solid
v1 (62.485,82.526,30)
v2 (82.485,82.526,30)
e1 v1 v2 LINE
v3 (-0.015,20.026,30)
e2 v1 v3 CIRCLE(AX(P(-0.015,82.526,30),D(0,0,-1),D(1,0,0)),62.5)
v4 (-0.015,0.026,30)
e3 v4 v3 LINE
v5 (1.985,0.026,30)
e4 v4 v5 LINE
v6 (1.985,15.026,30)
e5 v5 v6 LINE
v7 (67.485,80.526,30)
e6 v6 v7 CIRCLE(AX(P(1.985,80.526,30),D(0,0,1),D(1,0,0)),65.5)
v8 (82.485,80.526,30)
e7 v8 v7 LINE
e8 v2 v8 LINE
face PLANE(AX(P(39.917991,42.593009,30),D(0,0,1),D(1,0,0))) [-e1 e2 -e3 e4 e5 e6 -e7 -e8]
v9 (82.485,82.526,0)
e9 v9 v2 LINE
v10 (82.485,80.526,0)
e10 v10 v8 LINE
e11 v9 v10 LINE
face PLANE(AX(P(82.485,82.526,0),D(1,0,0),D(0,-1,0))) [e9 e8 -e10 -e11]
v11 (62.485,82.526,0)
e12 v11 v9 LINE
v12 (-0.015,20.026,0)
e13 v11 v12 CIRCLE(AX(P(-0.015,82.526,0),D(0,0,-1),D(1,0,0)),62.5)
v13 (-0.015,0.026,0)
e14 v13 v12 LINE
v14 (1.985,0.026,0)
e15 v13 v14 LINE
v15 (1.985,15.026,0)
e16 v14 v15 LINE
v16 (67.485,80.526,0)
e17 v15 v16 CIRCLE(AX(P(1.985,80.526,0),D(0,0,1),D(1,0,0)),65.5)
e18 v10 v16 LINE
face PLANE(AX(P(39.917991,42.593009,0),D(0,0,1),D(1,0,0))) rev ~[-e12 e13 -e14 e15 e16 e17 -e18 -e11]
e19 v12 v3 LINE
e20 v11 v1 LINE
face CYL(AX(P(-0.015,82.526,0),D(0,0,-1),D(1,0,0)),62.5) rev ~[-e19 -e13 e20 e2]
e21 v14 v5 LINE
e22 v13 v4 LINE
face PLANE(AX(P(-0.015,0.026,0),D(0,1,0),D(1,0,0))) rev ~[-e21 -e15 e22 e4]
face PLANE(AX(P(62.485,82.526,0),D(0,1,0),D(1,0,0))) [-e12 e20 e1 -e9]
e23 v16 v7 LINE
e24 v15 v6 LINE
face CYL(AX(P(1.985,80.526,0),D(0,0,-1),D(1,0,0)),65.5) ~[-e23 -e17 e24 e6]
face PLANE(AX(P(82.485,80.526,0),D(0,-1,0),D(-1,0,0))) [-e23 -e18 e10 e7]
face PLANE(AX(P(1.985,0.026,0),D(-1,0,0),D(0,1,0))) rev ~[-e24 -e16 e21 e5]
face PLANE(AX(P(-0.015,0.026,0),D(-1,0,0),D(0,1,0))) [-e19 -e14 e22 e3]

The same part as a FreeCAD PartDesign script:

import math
import FreeCAD as App
import Part
import Sketcher
from FreeCAD import Vector
Q = App.Units.Quantity

doc = App.newDocument("Part")
body = doc.addObject("PartDesign::Body", "Body")

# Sketch on XY plane
sketch1 = body.newObject("Sketcher::SketchObject", "Sketch")
sketch1.AttachmentSupport = (doc.getObject("XY_Plane"), [""])
sketch1.MapMode = "FlatFace"
sketch1.addGeometry(Part.LineSegment(Vector(0, 20, 0), Vector(0, 0, 0)), False)
sketch1.addGeometry(Part.LineSegment(Vector(0, 0, 0), Vector(2, 0, 0)), False)
sketch1.addGeometry(Part.LineSegment(Vector(2, 0, 0), Vector(2, 15, 0)), False)
sketch1.addGeometry(Part.ArcOfCircle(Part.Circle(Vector(2, 80.5, 0), Vector(0, 0, 1), 65.5), math.radians(-90), math.radians(0)), False)
sketch1.addGeometry(Part.LineSegment(Vector(67.5, 80.5, 0), Vector(82.5, 80.5, 0)), False)
sketch1.addGeometry(Part.LineSegment(Vector(82.5, 80.5, 0), Vector(82.5, 82.5, 0)), False)
sketch1.addGeometry(Part.LineSegment(Vector(82.5, 82.5, 0), Vector(62.5, 82.5, 0)), False)
sketch1.addGeometry(Part.ArcOfCircle(Part.Circle(Vector(0, 82.5, 0), Vector(0, 0, 1), 62.5), math.radians(-90), math.radians(0)), False)
sketch1.addConstraint(Sketcher.Constraint("Coincident", 0, 2, 1, 1))
sketch1.addConstraint(Sketcher.Constraint("Coincident", 1, 2, 2, 1))
sketch1.addConstraint(Sketcher.Constraint("Coincident", 2, 2, 3, 1))
sketch1.addConstraint(Sketcher.Constraint("Coincident", 3, 2, 4, 1))
sketch1.addConstraint(Sketcher.Constraint("Coincident", 4, 2, 5, 1))
sketch1.addConstraint(Sketcher.Constraint("Coincident", 5, 2, 6, 1))
sketch1.addConstraint(Sketcher.Constraint("Coincident", 6, 2, 7, 2))
sketch1.addConstraint(Sketcher.Constraint("Coincident", 7, 1, 0, 1))
sketch1.addConstraint(Sketcher.Constraint("Vertical", 0))
sketch1.addConstraint(Sketcher.Constraint("Horizontal", 1))
sketch1.addConstraint(Sketcher.Constraint("Vertical", 2))
sketch1.addConstraint(Sketcher.Constraint("Horizontal", 4))
sketch1.addConstraint(Sketcher.Constraint("Vertical", 5))
sketch1.addConstraint(Sketcher.Constraint("Horizontal", 6))
sketch1.addConstraint(Sketcher.Constraint("Horizontal", 7, 3, 5, 2))
sketch1.addConstraint(Sketcher.Constraint("Vertical", 7, 3, 0, 2))
sketch1.addConstraint(Sketcher.Constraint("Vertical", 3, 3, 1, 2))
sketch1.addConstraint(Sketcher.Constraint("Equal", 6, 0))
sketch1.addConstraint(Sketcher.Constraint("Equal", 4, 2))
sketch1.addConstraint(Sketcher.Constraint("Equal", 1, 5))
sketch1.addConstraint(Sketcher.Constraint("Radius", 3, Q("65.5 mm")))
sketch1.addConstraint(Sketcher.Constraint("Radius", 7, Q("62.5 mm")))
sketch1.addConstraint(Sketcher.Constraint("DistanceX", 1, 1, 1, 2, Q("2 mm")))
sketch1.addConstraint(Sketcher.Constraint("DistanceX", 4, 1, 4, 2, Q("15 mm")))
sketch1.addConstraint(Sketcher.Constraint("DistanceX", -1, 1, 3, 3, Q("1.985 mm")))
sketch1.addConstraint(Sketcher.Constraint("DistanceY", -1, 1, 3, 3, Q("80.526 mm")))
pad1 = body.newObject("PartDesign::Pad", "Pad")
pad1.Profile = sketch1
pad1.Length = 30

doc.recompute()
